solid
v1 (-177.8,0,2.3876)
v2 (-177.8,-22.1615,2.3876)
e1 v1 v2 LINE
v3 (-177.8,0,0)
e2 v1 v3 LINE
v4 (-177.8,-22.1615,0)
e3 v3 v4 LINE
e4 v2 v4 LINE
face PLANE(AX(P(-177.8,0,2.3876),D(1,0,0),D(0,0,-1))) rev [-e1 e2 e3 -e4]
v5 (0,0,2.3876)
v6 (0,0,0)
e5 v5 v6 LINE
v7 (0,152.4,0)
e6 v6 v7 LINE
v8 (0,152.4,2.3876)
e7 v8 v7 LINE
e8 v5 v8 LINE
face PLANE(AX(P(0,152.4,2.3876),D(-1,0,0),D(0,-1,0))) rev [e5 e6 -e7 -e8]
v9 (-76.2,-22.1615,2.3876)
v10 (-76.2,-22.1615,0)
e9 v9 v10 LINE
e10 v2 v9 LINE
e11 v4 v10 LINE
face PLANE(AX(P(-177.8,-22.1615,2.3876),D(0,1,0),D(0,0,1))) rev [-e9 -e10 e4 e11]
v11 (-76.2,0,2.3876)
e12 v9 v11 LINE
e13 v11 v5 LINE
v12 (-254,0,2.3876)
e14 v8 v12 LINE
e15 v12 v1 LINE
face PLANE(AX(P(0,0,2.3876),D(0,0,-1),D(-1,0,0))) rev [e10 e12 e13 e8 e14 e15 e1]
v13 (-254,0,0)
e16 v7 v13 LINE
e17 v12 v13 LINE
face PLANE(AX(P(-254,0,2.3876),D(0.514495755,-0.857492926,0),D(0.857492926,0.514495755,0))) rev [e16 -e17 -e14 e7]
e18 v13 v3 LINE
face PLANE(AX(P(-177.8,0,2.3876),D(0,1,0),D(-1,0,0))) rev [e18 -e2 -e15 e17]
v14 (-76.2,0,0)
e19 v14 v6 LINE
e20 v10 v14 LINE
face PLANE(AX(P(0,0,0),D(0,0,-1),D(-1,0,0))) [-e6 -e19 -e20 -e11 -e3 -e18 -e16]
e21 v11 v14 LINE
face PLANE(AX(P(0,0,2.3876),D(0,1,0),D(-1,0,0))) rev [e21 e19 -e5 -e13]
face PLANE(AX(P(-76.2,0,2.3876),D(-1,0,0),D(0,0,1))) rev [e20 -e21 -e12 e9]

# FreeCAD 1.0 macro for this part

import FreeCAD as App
import Part
import Sketcher

V = App.Vector
Q = App.Units.Quantity


def add_polygon(sketch, points):
    """Adds a closed chain of lines whose ends are joined by coincident constraints."""
    first, n = sketch.GeometryCount, len(points)
    for a, b in zip(points, points[1:] + points[:1]):
        sketch.addGeometry(Part.LineSegment(App.Vector(*a, 0), App.Vector(*b, 0)), False)
    for i in range(n):
        sketch.addConstraint(Sketcher.Constraint("Coincident", first + i, 2, first + (i + 1) % n, 1))

doc = App.newDocument("Part")
params = doc.addObject("Spreadsheet::Sheet", "Params")
for row, (alias, value) in enumerate([
    ("sketch1_width", "3 in"),
    ("sketch1_width2", "4 in"),
    ("sketch1_height", "6 in"),
    ("pad1_length", "0.094 in"),
], start=1):
    params.set(f"A{row}", alias)
    params.set(f"B{row}", "=" + value)
    params.setAlias(f"B{row}", alias)

body = doc.addObject("PartDesign::Body", "Body")

# Sketch on XY plane
sketch1 = body.newObject("Sketcher::SketchObject", "Sketch")
sketch1.AttachmentSupport = (doc.getObject("XY_Plane"), [""])
sketch1.MapMode = "FlatFace"
add_polygon(sketch1, [(-76, 0), (0, 0), (0, 152), (-254, 0), (-178, 0), (-178, -22), (-76, -22)])  # lines 0-6
sketch1.addConstraint([
    Sketcher.Constraint("Horizontal", 0),
    Sketcher.Constraint("Vertical", 1),
    Sketcher.Constraint("Horizontal", 3),
    Sketcher.Constraint("Vertical", 4),
    Sketcher.Constraint("Horizontal", 5),
    Sketcher.Constraint("Vertical", 6),
    Sketcher.Constraint("Coincident", 0, 2, -1, 1),
    Sketcher.Constraint("PointOnObject", 2, 2, -1),
    Sketcher.Constraint("Equal", 0, 3),
    Sketcher.Constraint("DistanceX", 0, 1, 0, 2, Q("3 in")),
    Sketcher.Constraint("DistanceX", 5, 1, 5, 2, Q("4 in")),
    Sketcher.Constraint("DistanceY", 1, 1, 1, 2, Q("6 in")),
    Sketcher.Constraint("DistanceY", 4, 2, 4, 1, Q("0.8725 in")),
])
sketch1.setExpression("Constraints[16]", "Params.sketch1_width")
sketch1.setExpression("Constraints[17]", "Params.sketch1_width2")
sketch1.setExpression("Constraints[18]", "Params.sketch1_height")
pad1 = body.newObject("PartDesign::Pad", "Pad")
pad1.Profile = sketch1
pad1.setExpression("Length", "Params.pad1_length")

doc.recompute()
